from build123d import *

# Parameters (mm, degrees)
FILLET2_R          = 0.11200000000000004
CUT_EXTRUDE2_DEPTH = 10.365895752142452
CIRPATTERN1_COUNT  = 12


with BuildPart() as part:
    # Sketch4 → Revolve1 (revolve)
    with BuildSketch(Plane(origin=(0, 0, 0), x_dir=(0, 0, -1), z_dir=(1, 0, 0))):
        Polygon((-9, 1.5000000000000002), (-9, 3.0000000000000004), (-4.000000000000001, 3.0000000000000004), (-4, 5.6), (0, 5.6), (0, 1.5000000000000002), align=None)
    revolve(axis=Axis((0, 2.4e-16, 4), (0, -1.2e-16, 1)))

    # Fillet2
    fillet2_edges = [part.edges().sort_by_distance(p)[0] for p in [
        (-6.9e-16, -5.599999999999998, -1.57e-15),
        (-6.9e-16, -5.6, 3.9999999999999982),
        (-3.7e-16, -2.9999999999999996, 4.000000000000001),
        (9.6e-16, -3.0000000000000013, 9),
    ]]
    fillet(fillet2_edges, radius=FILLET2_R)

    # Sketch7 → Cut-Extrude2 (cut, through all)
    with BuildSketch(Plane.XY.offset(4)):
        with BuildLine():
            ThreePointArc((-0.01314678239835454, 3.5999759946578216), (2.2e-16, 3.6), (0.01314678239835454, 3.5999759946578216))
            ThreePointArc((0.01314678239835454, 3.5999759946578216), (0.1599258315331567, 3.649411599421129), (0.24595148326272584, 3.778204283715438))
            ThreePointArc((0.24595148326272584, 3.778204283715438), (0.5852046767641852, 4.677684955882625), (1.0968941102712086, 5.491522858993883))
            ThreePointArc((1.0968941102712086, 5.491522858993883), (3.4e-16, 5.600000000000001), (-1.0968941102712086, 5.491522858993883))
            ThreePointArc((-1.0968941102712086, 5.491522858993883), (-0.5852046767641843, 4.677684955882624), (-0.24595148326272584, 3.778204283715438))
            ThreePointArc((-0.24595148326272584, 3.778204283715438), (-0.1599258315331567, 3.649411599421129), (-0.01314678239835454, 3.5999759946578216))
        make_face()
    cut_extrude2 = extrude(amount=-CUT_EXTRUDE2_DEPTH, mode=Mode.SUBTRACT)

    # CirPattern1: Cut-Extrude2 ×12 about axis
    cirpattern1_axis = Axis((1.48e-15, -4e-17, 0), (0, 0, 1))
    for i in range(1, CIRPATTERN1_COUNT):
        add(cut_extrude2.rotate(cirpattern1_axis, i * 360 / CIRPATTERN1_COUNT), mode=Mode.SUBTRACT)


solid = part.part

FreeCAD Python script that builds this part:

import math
import FreeCAD as App
import Part
import Sketcher


def edges_at(feature, points):
    """Names of the edges that pass closest to the given points."""
    edges = feature.Shape.Edges
    near = lambda p: min(range(len(edges)), key=lambda i: edges[i].distToShape(Part.Vertex(*p))[0])
    return sorted({f"Edge{near(p) + 1}" for p in points})

doc = App.newDocument("Part")
body = doc.addObject("PartDesign::Body", "Body")

sketch1 = body.newObject("Sketcher::SketchObject", "Sketch")
sketch1.AttachmentSupport = (doc.getObject("YZ_Plane"), [""])
sketch1.MapMode = "FlatFace"
sketch1.addGeometry(Part.LineSegment(App.Vector(3, 9, 0), App.Vector(1.5, 9, 0)), False)
sketch1.addGeometry(Part.LineSegment(App.Vector(1.5, 9, 0), App.Vector(1.5, 0, 0)), False)
sketch1.addGeometry(Part.LineSegment(App.Vector(1.5, 0, 0), App.Vector(5.6, 0, 0)), False)
sketch1.addGeometry(Part.LineSegment(App.Vector(5.6, 0, 0), App.Vector(5.6, 4, 0)), False)
sketch1.addGeometry(Part.LineSegment(App.Vector(5.6, 4, 0), App.Vector(3, 4, 0)), False)
sketch1.addGeometry(Part.LineSegment(App.Vector(3, 4, 0), App.Vector(3, 9, 0)), False)
sketch1.addConstraint(Sketcher.Constraint("Coincident", 0, 2, 1, 1))
sketch1.addConstraint(Sketcher.Constraint("Coincident", 1, 2, 2, 1))
sketch1.addConstraint(Sketcher.Constraint("Coincident", 2, 2, 3, 1))
sketch1.addConstraint(Sketcher.Constraint("Coincident", 3, 2, 4, 1))
sketch1.addConstraint(Sketcher.Constraint("Coincident", 4, 2, 5, 1))
sketch1.addConstraint(Sketcher.Constraint("Coincident", 5, 2, 0, 1))
sketch1.addConstraint(Sketcher.Constraint("Horizontal", 0))
sketch1.addConstraint(Sketcher.Constraint("Vertical", 1))
sketch1.addConstraint(Sketcher.Constraint("Horizontal", 2))
sketch1.addConstraint(Sketcher.Constraint("Vertical", 3))
sketch1.addConstraint(Sketcher.Constraint("Horizontal", 4))
sketch1.addConstraint(Sketcher.Constraint("Vertical", 5))
sketch1.addConstraint(Sketcher.Constraint("PointOnObject", 1, 2, -1))
sketch1.addConstraint(Sketcher.Constraint("DistanceY", 1, 2, 1, 1, 9.0))
sketch1.addConstraint(Sketcher.Constraint("DistanceY", 3, 1, 3, 2, 4.0))
sketch1.addConstraint(Sketcher.Constraint("DistanceX", 0, 2, 0, 1, 1.5))
sketch1.addConstraint(Sketcher.Constraint("DistanceX", 2, 1, 2, 2, 4.1))
sketch1.addConstraint(Sketcher.Constraint("DistanceX", -1, 1, 4, 2, 3.0))
revolution = body.newObject("PartDesign::Revolution", "Revolution")
revolution.Profile = sketch1
revolution.ReferenceAxis = (sketch1, ["V_Axis"])
revolution.Angle = 360
doc.recompute()

fillet = body.newObject("PartDesign::Fillet", "Fillet")
fillet.Base = (revolution, edges_at(revolution, [
    (0, -5.6, 0),
    (0, -5.6, 4),
    (0, -3, 4),
    (0, -3, 9),
]))
fillet.Radius = 0.112

sketch2 = body.newObject("Sketcher::SketchObject", "Sketch001")
sketch2.AttachmentSupport = (doc.getObject("XY_Plane"), [""])
sketch2.MapMode = "FlatFace"
sketch2.AttachmentOffset = App.Placement(App.Vector(0, 0, 4), App.Rotation())
sketch2.addGeometry(Part.ArcOfCircle(Part.Circle(App.Vector(0, 0, 0), App.Vector(0, 0, 1), 3.6), math.radians(89.79), math.radians(90.21)), False)
sketch2.addGeometry(Part.ArcOfCircle(Part.Circle(App.Vector(0.014, 3.84, 0), App.Vector(0, 0, 1), 0.24), math.radians(-90), math.radians(-15)), False)
sketch2.addGeometry(Part.ArcOfCircle(Part.Circle(App.Vector(4.884, 2.543, 0), App.Vector(0, 0, 1), 4.8), math.radians(142), math.radians(165)), False)
sketch2.addGeometry(Part.ArcOfCircle(Part.Circle(App.Vector(0, 0, 0), App.Vector(0, 0, 1), 5.6), math.radians(79), math.radians(101)), False)
sketch2.addGeometry(Part.ArcOfCircle(Part.Circle(App.Vector(-4.884, 2.543, 0), App.Vector(0, 0, 1), 4.8), math.radians(15), math.radians(38)), False)
sketch2.addGeometry(Part.ArcOfCircle(Part.Circle(App.Vector(-0.014, 3.84, 0), App.Vector(0, 0, 1), 0.24), math.radians(-165), math.radians(-90)), False)
sketch2.addConstraint(Sketcher.Constraint("Tangent", 0, 1, 1, 1))
sketch2.addConstraint(Sketcher.Constraint("Tangent", 1, 2, 2, 2))
sketch2.addConstraint(Sketcher.Constraint("Coincident", 2, 1, 3, 1))
sketch2.addConstraint(Sketcher.Constraint("Coincident", 3, 2, 4, 2))
sketch2.addConstraint(Sketcher.Constraint("Tangent", 4, 1, 5, 1))
sketch2.addConstraint(Sketcher.Constraint("Tangent", 5, 2, 0, 2))
sketch2.addConstraint(Sketcher.Constraint("Coincident", 0, 3, -1, 1))
sketch2.addConstraint(Sketcher.Constraint("Coincident", 3, 3, -1, 1))
sketch2.addConstraint(Sketcher.Constraint("Equal", 2, 4))
sketch2.addConstraint(Sketcher.Constraint("Equal", 1, 5))
sketch2.addConstraint(Sketcher.Constraint("Symmetric", 2, 3, 4, 3, -2))
sketch2.addConstraint(Sketcher.Constraint("Radius", 0, 3.6))
sketch2.addConstraint(Sketcher.Constraint("Radius", 2, 4.8))
sketch2.addConstraint(Sketcher.Constraint("Radius", 3, 5.6))
sketch2.addConstraint(Sketcher.Constraint("Radius", 1, 0.240017))
sketch2.addConstraint(Sketcher.Constraint("DistanceX", 4, 3, 1, 3, 4.898201))
sketch2.addConstraint(Sketcher.Constraint("DistanceX", 4, 1, 0, 1, 0.259098))
pocket1 = body.newObject("PartDesign::Pocket", "Pocket")
pocket1.Profile = sketch2
pocket1.Type = "ThroughAll"
doc.recompute()

polarpattern = body.newObject("PartDesign::PolarPattern", "PolarPattern")
polarpattern.Originals = [pocket1]
polarpattern.Axis = (doc.getObject("Z_Axis"), [""])
polarpattern.Angle = 360
polarpattern.Occurrences = 12
body.Tip = polarpattern

doc.recompute()
